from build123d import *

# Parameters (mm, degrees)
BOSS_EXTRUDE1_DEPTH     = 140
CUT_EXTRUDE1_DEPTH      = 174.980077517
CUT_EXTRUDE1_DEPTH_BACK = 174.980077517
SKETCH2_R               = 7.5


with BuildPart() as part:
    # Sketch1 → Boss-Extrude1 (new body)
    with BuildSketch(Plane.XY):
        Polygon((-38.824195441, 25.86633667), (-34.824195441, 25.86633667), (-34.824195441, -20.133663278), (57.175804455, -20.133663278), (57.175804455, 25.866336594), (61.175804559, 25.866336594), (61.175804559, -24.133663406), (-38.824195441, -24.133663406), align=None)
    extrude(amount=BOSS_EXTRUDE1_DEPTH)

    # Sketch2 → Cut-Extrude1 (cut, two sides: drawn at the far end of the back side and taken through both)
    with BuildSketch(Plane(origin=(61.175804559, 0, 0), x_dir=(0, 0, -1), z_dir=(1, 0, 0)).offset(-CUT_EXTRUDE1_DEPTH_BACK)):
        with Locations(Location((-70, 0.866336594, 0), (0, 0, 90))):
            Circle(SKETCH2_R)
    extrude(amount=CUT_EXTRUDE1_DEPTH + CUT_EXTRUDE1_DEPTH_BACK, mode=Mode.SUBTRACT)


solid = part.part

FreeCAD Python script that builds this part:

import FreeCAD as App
import Part
import Sketcher
Q = App.Units.Quantity

doc = App.newDocument("Part")
body = doc.addObject("PartDesign::Body", "Body")

# Sketch on XY plane
sketch1 = body.newObject("Sketcher::SketchObject", "Sketch")
sketch1.AttachmentSupport = (doc.getObject("XY_Plane"), [""])
sketch1.MapMode = "FlatFace"
sketch1.addGeometry(Part.LineSegment(App.Vector(-34.8, 25.9, 0), App.Vector(-38.8, 25.9, 0)), False)
sketch1.addGeometry(Part.LineSegment(App.Vector(-38.8, 25.9, 0), App.Vector(-38.8, -24.1, 0)), False)
sketch1.addGeometry(Part.LineSegment(App.Vector(-38.8, -24.1, 0), App.Vector(61.2, -24.1, 0)), False)
sketch1.addGeometry(Part.LineSegment(App.Vector(61.2, -24.1, 0), App.Vector(61.2, 25.9, 0)), False)
sketch1.addGeometry(Part.LineSegment(App.Vector(61.2, 25.9, 0), App.Vector(57.2, 25.9, 0)), False)
sketch1.addGeometry(Part.LineSegment(App.Vector(57.2, 25.9, 0), App.Vector(57.2, -20.1, 0)), False)
sketch1.addGeometry(Part.LineSegment(App.Vector(57.2, -20.1, 0), App.Vector(-34.8, -20.1, 0)), False)
sketch1.addGeometry(Part.LineSegment(App.Vector(-34.8, -20.1, 0), App.Vector(-34.8, 25.9, 0)), False)
sketch1.addConstraint(Sketcher.Constraint("Coincident", 0, 2, 1, 1))
sketch1.addConstraint(Sketcher.Constraint("Coincident", 1, 2, 2, 1))
sketch1.addConstraint(Sketcher.Constraint("Coincident", 2, 2, 3, 1))
sketch1.addConstraint(Sketcher.Constraint("Coincident", 3, 2, 4, 1))
sketch1.addConstraint(Sketcher.Constraint("Coincident", 4, 2, 5, 1))
sketch1.addConstraint(Sketcher.Constraint("Coincident", 5, 2, 6, 1))
sketch1.addConstraint(Sketcher.Constraint("Coincident", 6, 2, 7, 1))
sketch1.addConstraint(Sketcher.Constraint("Coincident", 7, 2, 0, 1))
sketch1.addConstraint(Sketcher.Constraint("Horizontal", 0))
sketch1.addConstraint(Sketcher.Constraint("Vertical", 1))
sketch1.addConstraint(Sketcher.Constraint("Horizontal", 2))
sketch1.addConstraint(Sketcher.Constraint("Vertical", 3))
sketch1.addConstraint(Sketcher.Constraint("Horizontal", 4))
sketch1.addConstraint(Sketcher.Constraint("Vertical", 5))
sketch1.addConstraint(Sketcher.Constraint("Horizontal", 6))
sketch1.addConstraint(Sketcher.Constraint("Vertical", 7))
sketch1.addConstraint(Sketcher.Constraint("Horizontal", 0, 2, 3, 2))
sketch1.addConstraint(Sketcher.Constraint("Equal", 0, 4))
sketch1.addConstraint(Sketcher.Constraint("DistanceX", 0, 2, 0, 1, Q("4 mm")))
sketch1.addConstraint(Sketcher.Constraint("DistanceX", 2, 1, 2, 2, Q("100 mm")))
sketch1.addConstraint(Sketcher.Constraint("DistanceY", 1, 2, 1, 1, Q("50 mm")))
sketch1.addConstraint(Sketcher.Constraint("DistanceY", 5, 2, 5, 1, Q("46 mm")))
sketch1.addConstraint(Sketcher.Constraint("DistanceX", 0, 2, -1, 1, Q("38.824195 mm")))
sketch1.addConstraint(Sketcher.Constraint("DistanceY", -1, 1, 0, 2, Q("25.866337 mm")))
pad1 = body.newObject("PartDesign::Pad", "Pad")
pad1.Profile = sketch1
pad1.Length = 140

# Sketch on YZ plane
sketch2 = body.newObject("Sketcher::SketchObject", "Sketch001")
sketch2.AttachmentSupport = (doc.getObject("YZ_Plane"), [""])
sketch2.MapMode = "FlatFace"
sketch2.AttachmentOffset = App.Placement(App.Vector(0, 0, 61.175805), App.Rotation())
sketch2.addGeometry(Part.Circle(App.Vector(1, 70, 0), App.Vector(0, 0, 1), 8), False)
sketch2.addConstraint(Sketcher.Constraint("Diameter", 0, Q("15 mm")))
sketch2.addConstraint(Sketcher.Constraint("DistanceY", -1, 1, 0, 3, Q("70 mm")))
sketch2.addConstraint(Sketcher.Constraint("DistanceX", -1, 1, 0, 3, Q("0.866337 mm")))
pocket1 = body.newObject("PartDesign::Pocket", "Pocket")
pocket1.Profile = sketch2
pocket1.Type = "ThroughAll"
pocket1.Midplane = True

doc.recompute()
